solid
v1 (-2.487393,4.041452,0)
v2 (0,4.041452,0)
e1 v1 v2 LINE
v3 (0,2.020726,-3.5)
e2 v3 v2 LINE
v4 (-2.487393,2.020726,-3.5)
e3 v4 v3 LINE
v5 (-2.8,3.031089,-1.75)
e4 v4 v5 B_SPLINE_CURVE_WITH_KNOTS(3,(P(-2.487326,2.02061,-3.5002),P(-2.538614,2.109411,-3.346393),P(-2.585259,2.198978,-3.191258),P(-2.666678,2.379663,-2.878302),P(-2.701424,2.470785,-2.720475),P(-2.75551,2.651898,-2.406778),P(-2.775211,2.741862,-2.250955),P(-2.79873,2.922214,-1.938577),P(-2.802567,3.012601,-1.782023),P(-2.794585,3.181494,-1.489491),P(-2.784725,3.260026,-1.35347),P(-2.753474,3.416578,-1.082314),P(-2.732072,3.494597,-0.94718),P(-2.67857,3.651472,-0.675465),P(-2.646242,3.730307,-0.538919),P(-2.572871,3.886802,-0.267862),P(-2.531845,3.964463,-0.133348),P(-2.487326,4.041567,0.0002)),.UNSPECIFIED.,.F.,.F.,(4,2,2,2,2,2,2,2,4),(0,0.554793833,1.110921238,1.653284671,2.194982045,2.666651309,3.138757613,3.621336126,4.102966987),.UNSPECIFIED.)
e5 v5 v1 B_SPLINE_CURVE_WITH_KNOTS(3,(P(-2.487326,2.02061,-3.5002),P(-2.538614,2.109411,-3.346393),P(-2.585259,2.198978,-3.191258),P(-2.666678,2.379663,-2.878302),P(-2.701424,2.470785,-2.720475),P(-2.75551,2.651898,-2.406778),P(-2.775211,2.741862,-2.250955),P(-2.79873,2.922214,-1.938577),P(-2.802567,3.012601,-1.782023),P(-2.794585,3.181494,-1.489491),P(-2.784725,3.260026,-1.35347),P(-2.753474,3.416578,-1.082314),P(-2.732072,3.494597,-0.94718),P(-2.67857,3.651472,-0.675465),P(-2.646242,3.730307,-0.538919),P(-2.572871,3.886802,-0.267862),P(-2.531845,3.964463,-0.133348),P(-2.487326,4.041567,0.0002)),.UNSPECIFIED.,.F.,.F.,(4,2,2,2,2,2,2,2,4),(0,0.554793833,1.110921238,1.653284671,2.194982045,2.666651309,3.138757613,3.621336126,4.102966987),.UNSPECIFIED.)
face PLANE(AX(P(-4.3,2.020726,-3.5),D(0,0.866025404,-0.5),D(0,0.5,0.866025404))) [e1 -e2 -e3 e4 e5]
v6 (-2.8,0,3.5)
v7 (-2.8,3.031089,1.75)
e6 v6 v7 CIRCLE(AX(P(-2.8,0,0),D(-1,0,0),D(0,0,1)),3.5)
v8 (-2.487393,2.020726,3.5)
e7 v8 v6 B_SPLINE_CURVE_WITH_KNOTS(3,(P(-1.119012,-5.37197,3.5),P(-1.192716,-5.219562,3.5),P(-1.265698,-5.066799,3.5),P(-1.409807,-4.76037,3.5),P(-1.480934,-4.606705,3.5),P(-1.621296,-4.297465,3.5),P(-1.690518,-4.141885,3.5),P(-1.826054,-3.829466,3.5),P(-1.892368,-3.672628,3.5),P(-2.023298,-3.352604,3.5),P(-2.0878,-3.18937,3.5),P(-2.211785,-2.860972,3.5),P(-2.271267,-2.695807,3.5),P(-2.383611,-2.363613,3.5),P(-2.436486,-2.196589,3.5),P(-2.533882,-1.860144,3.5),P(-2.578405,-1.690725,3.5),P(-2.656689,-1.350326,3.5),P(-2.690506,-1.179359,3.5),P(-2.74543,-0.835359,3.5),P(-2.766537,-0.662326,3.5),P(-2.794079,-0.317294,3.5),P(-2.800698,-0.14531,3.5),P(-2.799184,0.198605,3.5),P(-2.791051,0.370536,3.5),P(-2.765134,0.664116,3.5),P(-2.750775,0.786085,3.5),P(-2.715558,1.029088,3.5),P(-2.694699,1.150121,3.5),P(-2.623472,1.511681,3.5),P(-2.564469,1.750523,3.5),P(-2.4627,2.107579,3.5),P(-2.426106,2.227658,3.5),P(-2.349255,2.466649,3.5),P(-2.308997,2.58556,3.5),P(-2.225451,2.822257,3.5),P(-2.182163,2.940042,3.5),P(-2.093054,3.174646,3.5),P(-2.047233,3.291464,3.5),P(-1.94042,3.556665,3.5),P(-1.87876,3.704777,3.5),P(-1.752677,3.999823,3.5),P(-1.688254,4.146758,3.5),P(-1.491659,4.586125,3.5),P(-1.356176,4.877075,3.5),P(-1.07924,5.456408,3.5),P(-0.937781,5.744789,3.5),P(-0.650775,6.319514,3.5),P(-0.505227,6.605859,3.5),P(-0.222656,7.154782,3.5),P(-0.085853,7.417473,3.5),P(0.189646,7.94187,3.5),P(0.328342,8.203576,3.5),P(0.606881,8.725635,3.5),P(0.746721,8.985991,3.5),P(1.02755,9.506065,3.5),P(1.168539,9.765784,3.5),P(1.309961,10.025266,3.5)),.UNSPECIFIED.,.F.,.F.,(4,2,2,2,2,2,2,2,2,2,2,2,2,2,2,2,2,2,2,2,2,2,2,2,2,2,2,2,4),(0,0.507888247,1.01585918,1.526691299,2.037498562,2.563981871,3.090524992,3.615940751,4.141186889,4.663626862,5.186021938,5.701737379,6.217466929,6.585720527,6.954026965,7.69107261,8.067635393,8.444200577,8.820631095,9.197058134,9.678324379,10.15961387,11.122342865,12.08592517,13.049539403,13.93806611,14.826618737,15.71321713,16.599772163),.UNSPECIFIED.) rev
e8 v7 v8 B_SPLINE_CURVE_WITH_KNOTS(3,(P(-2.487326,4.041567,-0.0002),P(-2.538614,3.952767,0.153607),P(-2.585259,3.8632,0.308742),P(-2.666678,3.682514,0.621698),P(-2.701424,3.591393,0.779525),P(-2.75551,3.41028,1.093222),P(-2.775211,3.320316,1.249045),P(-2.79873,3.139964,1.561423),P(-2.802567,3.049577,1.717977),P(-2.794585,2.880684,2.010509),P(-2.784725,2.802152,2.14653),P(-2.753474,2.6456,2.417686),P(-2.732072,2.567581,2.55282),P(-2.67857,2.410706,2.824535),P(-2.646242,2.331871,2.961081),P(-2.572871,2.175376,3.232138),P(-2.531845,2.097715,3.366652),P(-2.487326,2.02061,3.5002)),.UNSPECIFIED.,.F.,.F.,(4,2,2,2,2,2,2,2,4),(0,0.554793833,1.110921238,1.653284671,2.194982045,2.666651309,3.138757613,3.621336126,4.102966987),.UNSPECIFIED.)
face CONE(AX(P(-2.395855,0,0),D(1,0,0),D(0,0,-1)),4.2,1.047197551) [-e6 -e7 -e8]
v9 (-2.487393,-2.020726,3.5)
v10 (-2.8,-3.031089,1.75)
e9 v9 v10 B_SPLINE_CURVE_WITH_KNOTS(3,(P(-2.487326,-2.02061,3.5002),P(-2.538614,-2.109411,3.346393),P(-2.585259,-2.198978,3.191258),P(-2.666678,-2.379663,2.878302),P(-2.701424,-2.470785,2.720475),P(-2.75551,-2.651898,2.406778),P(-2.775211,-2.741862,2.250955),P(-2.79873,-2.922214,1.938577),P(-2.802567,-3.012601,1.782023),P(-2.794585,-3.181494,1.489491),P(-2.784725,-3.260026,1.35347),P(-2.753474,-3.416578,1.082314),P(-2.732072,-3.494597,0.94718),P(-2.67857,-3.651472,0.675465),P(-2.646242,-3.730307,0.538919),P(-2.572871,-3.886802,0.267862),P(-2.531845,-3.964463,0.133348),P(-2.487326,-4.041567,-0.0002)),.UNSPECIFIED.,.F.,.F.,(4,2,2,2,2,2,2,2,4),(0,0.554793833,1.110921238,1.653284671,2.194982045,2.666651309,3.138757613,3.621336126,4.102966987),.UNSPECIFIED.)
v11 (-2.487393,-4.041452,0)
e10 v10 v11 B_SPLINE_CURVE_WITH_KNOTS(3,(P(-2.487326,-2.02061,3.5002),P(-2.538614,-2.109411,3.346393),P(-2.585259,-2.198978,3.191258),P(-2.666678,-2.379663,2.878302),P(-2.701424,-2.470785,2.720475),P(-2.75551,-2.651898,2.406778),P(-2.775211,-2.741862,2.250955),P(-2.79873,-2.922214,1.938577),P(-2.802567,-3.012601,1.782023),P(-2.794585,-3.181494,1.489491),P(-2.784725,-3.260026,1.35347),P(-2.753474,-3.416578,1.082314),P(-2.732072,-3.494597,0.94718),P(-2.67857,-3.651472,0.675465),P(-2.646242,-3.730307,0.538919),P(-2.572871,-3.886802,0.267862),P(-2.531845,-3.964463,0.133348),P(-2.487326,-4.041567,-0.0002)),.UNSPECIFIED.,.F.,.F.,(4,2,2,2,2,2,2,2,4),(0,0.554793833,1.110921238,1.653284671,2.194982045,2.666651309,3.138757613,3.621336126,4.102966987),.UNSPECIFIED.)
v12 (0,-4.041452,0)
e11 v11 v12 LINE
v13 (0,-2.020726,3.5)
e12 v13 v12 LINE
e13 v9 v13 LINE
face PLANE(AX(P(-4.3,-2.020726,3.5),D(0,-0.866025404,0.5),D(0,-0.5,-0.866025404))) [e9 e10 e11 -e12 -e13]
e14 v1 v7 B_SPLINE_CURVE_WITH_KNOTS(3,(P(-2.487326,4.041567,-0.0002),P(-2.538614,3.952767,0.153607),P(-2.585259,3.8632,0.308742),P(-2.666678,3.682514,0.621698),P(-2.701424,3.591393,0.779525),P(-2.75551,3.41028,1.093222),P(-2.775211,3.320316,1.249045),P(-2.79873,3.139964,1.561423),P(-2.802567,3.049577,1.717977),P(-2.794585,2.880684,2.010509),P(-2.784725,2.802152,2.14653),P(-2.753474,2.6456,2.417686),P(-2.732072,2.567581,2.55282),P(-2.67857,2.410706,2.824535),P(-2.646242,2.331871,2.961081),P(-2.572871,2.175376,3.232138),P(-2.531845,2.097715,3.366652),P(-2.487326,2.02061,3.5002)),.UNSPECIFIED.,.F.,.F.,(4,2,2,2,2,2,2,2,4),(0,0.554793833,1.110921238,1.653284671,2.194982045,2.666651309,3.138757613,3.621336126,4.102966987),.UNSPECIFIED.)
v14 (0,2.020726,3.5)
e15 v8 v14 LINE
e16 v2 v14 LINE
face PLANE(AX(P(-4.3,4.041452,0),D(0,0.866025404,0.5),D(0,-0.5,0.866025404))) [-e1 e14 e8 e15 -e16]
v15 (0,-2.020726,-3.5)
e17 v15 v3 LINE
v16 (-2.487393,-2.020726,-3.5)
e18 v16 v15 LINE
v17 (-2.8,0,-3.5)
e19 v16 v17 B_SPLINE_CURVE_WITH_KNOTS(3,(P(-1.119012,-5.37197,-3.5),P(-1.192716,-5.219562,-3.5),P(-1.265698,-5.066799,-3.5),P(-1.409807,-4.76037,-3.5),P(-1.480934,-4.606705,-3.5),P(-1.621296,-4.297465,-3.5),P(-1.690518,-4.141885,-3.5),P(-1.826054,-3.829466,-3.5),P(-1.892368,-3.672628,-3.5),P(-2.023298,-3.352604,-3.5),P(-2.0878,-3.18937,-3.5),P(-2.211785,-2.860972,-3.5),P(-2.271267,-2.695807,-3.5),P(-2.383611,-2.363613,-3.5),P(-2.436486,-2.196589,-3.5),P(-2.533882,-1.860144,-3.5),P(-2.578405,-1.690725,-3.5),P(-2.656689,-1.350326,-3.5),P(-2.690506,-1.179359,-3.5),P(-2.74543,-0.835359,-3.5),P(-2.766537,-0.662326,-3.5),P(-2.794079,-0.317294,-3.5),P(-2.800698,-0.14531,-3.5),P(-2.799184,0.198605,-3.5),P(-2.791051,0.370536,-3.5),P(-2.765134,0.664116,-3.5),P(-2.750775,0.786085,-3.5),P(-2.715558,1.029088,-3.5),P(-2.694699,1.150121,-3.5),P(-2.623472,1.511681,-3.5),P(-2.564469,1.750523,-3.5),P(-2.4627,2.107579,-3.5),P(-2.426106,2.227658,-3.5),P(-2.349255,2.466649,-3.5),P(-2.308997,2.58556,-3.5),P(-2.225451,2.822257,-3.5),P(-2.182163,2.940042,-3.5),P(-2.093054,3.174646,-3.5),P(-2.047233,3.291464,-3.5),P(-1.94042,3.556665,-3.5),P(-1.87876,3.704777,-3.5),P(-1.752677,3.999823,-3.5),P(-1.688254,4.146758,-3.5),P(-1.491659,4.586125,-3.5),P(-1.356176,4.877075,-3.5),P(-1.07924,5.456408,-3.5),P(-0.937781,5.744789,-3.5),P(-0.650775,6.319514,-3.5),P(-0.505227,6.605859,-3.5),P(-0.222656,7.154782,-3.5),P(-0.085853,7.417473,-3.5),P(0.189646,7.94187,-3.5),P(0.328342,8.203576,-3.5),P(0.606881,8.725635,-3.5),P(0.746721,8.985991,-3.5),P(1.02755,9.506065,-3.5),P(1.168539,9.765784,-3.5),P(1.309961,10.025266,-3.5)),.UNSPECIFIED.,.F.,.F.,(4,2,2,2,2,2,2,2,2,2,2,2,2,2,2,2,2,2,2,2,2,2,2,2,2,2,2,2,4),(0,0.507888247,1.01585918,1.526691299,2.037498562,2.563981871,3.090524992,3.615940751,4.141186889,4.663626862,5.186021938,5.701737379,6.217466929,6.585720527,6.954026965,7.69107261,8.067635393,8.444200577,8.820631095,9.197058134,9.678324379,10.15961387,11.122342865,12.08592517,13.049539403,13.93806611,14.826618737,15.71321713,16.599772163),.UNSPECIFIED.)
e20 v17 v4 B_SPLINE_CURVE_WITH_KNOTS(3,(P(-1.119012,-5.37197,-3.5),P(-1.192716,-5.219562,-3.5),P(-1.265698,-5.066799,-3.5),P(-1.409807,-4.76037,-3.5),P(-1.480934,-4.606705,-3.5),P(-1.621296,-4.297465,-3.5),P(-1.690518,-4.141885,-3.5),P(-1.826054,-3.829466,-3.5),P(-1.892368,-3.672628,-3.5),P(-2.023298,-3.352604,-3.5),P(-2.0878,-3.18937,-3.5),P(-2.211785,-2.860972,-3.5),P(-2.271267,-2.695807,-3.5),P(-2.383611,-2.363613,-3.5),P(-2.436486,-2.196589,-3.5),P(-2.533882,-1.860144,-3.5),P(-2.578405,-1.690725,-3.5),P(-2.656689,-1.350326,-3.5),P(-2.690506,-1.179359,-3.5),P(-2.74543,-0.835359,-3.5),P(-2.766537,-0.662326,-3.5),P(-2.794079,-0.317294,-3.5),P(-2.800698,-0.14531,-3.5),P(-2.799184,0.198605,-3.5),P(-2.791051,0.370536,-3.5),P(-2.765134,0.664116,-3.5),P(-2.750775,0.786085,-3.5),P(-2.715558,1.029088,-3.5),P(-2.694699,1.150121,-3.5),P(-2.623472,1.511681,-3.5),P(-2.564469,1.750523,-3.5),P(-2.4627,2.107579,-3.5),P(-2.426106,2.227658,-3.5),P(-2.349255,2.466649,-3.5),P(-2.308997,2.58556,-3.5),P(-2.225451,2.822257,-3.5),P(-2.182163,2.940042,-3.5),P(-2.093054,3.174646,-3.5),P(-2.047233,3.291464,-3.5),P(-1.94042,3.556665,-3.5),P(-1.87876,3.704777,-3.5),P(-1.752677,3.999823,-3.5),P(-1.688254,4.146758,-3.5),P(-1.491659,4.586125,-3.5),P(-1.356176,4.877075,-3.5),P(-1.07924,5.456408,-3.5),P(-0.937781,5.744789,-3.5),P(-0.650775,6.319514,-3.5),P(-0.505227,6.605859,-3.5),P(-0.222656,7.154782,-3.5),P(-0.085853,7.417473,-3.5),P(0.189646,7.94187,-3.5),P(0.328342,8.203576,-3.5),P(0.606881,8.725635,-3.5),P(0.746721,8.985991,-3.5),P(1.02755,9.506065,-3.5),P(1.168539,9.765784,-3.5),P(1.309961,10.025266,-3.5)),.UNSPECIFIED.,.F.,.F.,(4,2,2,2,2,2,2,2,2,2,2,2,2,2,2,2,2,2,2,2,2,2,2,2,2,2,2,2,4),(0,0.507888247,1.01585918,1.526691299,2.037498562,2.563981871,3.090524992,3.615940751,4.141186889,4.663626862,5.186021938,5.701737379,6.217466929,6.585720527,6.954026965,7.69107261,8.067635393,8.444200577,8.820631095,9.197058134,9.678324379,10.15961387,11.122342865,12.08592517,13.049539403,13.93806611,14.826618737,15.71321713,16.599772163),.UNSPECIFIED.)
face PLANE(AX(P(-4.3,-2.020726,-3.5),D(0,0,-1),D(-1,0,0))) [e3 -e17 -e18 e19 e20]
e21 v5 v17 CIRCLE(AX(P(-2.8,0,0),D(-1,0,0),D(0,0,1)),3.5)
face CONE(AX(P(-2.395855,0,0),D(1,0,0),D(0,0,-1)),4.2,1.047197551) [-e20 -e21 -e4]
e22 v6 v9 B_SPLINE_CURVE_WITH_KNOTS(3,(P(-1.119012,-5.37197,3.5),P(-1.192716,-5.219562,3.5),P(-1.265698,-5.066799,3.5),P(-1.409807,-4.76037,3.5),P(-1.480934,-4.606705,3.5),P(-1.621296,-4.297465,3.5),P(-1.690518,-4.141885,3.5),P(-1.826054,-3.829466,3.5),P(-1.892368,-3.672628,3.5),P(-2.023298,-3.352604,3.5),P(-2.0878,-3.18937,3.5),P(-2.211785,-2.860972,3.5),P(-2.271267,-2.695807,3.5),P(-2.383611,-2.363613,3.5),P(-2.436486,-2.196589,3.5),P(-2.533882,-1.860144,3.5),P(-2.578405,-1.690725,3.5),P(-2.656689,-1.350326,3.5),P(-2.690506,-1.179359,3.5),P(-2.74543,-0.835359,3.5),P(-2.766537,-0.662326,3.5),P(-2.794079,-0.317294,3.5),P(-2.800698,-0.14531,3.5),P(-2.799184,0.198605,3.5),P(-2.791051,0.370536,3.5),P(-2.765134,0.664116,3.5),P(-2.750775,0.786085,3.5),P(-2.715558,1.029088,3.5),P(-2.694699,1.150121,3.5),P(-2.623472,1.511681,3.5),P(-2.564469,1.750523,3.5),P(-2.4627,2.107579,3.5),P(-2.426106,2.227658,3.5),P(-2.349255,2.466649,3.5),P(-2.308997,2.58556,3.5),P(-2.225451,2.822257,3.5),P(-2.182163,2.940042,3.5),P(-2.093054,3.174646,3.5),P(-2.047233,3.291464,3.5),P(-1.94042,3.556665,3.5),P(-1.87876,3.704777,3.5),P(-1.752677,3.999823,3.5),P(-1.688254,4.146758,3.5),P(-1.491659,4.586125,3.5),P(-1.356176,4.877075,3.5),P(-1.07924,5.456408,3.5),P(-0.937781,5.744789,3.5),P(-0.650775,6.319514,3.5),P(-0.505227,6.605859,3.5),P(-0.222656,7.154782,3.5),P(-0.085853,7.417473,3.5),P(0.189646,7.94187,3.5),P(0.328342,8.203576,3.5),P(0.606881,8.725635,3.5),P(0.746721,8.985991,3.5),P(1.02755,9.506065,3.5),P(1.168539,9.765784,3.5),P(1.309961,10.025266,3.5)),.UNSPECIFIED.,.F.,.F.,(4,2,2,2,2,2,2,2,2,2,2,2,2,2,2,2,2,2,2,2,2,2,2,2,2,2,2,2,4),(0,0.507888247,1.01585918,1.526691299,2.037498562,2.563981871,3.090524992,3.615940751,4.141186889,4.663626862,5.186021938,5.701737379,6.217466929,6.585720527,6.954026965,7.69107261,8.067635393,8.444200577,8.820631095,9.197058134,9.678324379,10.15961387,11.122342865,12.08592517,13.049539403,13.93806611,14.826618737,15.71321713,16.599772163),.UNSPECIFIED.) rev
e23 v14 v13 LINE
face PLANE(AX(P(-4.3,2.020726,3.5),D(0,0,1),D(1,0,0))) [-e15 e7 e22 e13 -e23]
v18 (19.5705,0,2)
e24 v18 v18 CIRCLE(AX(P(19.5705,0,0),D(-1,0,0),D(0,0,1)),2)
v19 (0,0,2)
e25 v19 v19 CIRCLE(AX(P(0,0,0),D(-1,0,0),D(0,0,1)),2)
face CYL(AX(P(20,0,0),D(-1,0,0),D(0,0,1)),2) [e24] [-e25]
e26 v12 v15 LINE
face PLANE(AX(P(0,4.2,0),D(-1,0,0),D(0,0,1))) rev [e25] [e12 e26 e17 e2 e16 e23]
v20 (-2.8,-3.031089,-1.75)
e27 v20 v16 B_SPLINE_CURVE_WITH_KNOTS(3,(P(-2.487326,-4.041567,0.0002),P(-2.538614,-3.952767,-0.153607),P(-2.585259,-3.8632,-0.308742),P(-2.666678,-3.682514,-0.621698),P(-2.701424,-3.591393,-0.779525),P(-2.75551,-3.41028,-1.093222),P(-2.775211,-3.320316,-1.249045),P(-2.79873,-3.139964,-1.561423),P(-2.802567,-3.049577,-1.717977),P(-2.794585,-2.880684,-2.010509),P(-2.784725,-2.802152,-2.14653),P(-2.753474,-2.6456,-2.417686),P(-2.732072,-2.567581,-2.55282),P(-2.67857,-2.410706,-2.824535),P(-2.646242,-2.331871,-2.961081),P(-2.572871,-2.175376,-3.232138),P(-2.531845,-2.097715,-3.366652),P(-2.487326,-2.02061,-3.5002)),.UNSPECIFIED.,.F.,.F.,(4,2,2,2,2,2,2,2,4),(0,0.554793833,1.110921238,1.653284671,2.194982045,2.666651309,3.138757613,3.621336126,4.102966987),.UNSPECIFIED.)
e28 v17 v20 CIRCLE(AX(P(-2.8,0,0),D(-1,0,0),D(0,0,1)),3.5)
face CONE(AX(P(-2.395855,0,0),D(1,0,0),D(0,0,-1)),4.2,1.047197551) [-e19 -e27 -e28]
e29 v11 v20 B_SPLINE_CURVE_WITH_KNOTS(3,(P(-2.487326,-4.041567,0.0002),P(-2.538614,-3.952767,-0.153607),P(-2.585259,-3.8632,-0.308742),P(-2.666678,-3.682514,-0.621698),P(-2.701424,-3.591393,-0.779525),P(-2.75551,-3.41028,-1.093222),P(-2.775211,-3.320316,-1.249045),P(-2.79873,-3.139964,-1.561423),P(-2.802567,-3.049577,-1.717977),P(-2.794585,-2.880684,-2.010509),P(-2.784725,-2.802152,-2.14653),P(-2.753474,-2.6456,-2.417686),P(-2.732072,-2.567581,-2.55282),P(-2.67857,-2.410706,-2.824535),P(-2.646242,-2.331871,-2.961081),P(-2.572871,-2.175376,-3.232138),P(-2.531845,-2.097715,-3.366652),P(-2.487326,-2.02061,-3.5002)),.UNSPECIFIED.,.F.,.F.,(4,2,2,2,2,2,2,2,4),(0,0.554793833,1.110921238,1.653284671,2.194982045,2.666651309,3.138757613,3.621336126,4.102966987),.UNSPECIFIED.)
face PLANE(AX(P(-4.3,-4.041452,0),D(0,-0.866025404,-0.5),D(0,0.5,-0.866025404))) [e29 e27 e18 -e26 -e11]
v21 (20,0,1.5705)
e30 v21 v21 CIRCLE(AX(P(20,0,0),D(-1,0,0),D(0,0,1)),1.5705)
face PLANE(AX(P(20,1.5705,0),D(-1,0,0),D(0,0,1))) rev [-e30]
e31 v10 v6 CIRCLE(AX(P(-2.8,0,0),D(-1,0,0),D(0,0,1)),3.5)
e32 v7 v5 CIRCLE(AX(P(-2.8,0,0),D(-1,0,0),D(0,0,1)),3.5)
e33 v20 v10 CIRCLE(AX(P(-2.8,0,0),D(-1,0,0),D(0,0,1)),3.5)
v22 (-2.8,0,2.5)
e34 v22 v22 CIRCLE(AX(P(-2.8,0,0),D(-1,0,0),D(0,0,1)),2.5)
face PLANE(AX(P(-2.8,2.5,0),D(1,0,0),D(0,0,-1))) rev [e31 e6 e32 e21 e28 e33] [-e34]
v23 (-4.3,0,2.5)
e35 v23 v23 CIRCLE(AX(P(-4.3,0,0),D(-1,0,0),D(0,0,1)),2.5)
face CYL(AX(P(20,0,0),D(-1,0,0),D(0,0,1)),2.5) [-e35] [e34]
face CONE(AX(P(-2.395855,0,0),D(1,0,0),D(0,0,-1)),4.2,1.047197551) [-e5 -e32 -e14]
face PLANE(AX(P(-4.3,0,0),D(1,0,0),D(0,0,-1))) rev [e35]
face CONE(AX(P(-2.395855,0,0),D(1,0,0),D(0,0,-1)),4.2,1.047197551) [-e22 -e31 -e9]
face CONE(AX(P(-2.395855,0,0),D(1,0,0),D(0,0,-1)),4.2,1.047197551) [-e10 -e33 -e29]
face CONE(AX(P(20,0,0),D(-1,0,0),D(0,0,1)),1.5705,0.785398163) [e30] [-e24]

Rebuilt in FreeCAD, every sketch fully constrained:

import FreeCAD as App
import Part
import Sketcher
Q = App.Units.Quantity


def add_polygon(sketch, points):
    """Adds a closed chain of lines whose ends are joined by coincident constraints."""
    first, n = sketch.GeometryCount, len(points)
    for a, b in zip(points, points[1:] + points[:1]):
        sketch.addGeometry(Part.LineSegment(App.Vector(*a, 0), App.Vector(*b, 0)), False)
    for i in range(n):
        sketch.addConstraint(Sketcher.Constraint("Coincident", first + i, 2, first + (i + 1) % n, 1))

doc = App.newDocument("Part")
body = doc.addObject("PartDesign::Body", "Body")

# Sketch on XY plane
sketch1 = body.newObject("Sketcher::SketchObject", "Sketch")
sketch1.AttachmentSupport = (doc.getObject("XY_Plane"), [""])
sketch1.MapMode = "FlatFace"
add_polygon(sketch1, [(-4.3, 2.5), (-4.3, 0), (20, 0), (20, 1.6), (19.6, 2), (0, 2), (0, 4.2), (-2.4, 4.2), (-2.8, 3.5), (-2.8, 2.5)])  # lines 0-9
sketch1.addConstraint([
    Sketcher.Constraint("Vertical", 0),
    Sketcher.Constraint("Horizontal", 1),
    Sketcher.Constraint("Vertical", 2),
    Sketcher.Constraint("Horizontal", 4),
    Sketcher.Constraint("Vertical", 5),
    Sketcher.Constraint("Horizontal", 6),
    Sketcher.Constraint("Vertical", 8),
    Sketcher.Constraint("Horizontal", 9),
    Sketcher.Constraint("PointOnObject", 0, 2, -1),
    Sketcher.Constraint("PointOnObject", 4, 2, -2),
    Sketcher.Constraint("DistanceY", 8, 2, 8, 1, Q("1 mm")),
    Sketcher.Constraint("Angle", 3, Q("135 deg")),
    Sketcher.Constraint("Angle", 7, Q("-120 deg")),
    Sketcher.Constraint("DistanceX", 1, 1, 1, 2, Q("24.3 mm")),
    Sketcher.Constraint("DistanceX", 9, 2, 9, 1, Q("1.5 mm")),
    Sketcher.Constraint("DistanceY", 0, 2, 0, 1, Q("2.5 mm")),
    Sketcher.Constraint("DistanceY", 5, 1, 5, 2, Q("2.2 mm")),
    Sketcher.Constraint("DistanceX", -1, 1, 1, 2, Q("20 mm")),
    Sketcher.Constraint("DistanceY", -1, 1, 3, 2, Q("2 mm")),
    Sketcher.Constraint("DistanceX", 4, 2, 4, 1, Q("19.5705 mm")),
])
revolution = body.newObject("PartDesign::Revolution", "Revolution")
revolution.Profile = sketch1
revolution.ReferenceAxis = (sketch1, ["H_Axis"])
revolution.Angle = 360

# Sketch on YZ plane
sketch2 = body.newObject("Sketcher::SketchObject", "Sketch001")
sketch2.AttachmentSupport = (doc.getObject("YZ_Plane"), [""])
sketch2.MapMode = "FlatFace"
add_polygon(sketch2, [(8.1, 8.1), (-8.1, 8.1), (-8.1, -8.1), (8.1, -8.1)])  # lines 0-3
add_polygon(sketch2, [(-2, 3.5), (2, 3.5), (4, 0), (2, -3.5), (-2, -3.5), (-4, 0)])  # lines 4-9
sketch2.addConstraint([
    Sketcher.Constraint("Horizontal", 0),
    Sketcher.Constraint("Vertical", 1),
    Sketcher.Constraint("Horizontal", 2),
    Sketcher.Constraint("Vertical", 3),
    Sketcher.Constraint("Horizontal", 4),
    Sketcher.Constraint("Horizontal", 7),
    Sketcher.Constraint("Symmetric", 0, 2, 2, 2, -1, 1),
    Sketcher.Constraint("Symmetric", 4, 2, 7, 2, -1, 1),
    Sketcher.Constraint("Symmetric", 5, 2, 8, 2, -1, 1),
    Sketcher.Constraint("PointOnObject", 5, 2, -1),
    Sketcher.Constraint("Parallel", 6, 9),
    Sketcher.Constraint("Vertical", 4, 2, 6, 2),
    Sketcher.Constraint("Equal", 2, 1),
    Sketcher.Constraint("Angle", 5, Q("-60 deg")),
    Sketcher.Constraint("DistanceX", 0, 2, 0, 1, Q("16.2 mm")),
    Sketcher.Constraint("DistanceY", 6, 2, 4, 2, Q("7 mm")),
    Sketcher.Constraint("DistanceX", 4, 1, 4, 2, Q("4.041452 mm")),
])
pocket1 = body.newObject("PartDesign::Pocket", "Pocket")
pocket1.Profile = sketch2
pocket1.Length = 4.3

doc.recompute()
